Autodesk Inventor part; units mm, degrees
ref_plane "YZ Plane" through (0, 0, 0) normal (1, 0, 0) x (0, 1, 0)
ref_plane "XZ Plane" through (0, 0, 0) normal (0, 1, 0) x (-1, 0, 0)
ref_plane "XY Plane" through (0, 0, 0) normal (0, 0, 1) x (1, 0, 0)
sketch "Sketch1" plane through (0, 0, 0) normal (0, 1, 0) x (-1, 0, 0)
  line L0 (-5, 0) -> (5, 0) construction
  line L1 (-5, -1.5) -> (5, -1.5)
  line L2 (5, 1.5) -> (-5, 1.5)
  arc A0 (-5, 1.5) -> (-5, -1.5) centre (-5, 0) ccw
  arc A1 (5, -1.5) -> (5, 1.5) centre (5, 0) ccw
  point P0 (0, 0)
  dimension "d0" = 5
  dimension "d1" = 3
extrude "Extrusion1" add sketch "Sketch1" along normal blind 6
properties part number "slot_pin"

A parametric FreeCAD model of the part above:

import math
import FreeCAD as App
import Part
import Sketcher

V = App.Vector
Q = App.Units.Quantity

doc = App.newDocument("Part")
params = doc.addObject("Spreadsheet::Sheet", "Params")
for row, (alias, value) in enumerate([
    ("sketch1_radius", "1.5 mm"),
    ("pad1_length", "6 mm"),
], start=1):
    params.set(f"A{row}", alias)
    params.set(f"B{row}", "=" + value)
    params.setAlias(f"B{row}", alias)

body = doc.addObject("PartDesign::Body", "Body")

sketch1 = doc.addObject("Sketcher::SketchObject", "Sketch")
body.addObject(sketch1)
sketch1.AttachmentSupport = (doc.XZ_Plane, [""])
sketch1.MapMode = "FlatFace"
sketch1.addGeometry(Part.ArcOfCircle(Part.Circle(V(5, 0, 0), V(0, 0, 1), 1.5), math.radians(-90), math.radians(90)), False)
sketch1.addGeometry(Part.LineSegment(V(5, -1.5, 0), V(-5, -1.5, 0)), False)
sketch1.addGeometry(Part.ArcOfCircle(Part.Circle(V(-5, 0, 0), V(0, 0, 1), 1.5), math.radians(90), math.radians(270)), False)
sketch1.addGeometry(Part.LineSegment(V(-5, 1.5, 0), V(5, 1.5, 0)), False)
sketch1.addConstraint(Sketcher.Constraint("Tangent", 0, 1, 1, 1))
sketch1.addConstraint(Sketcher.Constraint("Tangent", 1, 2, 2, 2))
sketch1.addConstraint(Sketcher.Constraint("Tangent", 2, 1, 3, 1))
sketch1.addConstraint(Sketcher.Constraint("Tangent", 3, 2, 0, 2))
sketch1.addConstraint(Sketcher.Constraint("Horizontal", 1))
sketch1.addConstraint(Sketcher.Constraint("Horizontal", 3))
sketch1.addConstraint(Sketcher.Constraint("Symmetric", 0, 3, 2, 3, -1, 1))
sketch1.addConstraint(Sketcher.Constraint("Radius", 0, Q("1.5 mm")))
sketch1.addConstraint(Sketcher.Constraint("DistanceX", -1, 1, 0, 3, Q("5 mm")))
sketch1.setExpression("Constraints[7]", "Params.sketch1_radius")
pad1 = doc.addObject("PartDesign::Pad", "Pad")
body.addObject(pad1)
pad1.Profile = sketch1
pad1.setExpression("Length", "Params.pad1_length")
pad1.Reversed = True

doc.recompute()
